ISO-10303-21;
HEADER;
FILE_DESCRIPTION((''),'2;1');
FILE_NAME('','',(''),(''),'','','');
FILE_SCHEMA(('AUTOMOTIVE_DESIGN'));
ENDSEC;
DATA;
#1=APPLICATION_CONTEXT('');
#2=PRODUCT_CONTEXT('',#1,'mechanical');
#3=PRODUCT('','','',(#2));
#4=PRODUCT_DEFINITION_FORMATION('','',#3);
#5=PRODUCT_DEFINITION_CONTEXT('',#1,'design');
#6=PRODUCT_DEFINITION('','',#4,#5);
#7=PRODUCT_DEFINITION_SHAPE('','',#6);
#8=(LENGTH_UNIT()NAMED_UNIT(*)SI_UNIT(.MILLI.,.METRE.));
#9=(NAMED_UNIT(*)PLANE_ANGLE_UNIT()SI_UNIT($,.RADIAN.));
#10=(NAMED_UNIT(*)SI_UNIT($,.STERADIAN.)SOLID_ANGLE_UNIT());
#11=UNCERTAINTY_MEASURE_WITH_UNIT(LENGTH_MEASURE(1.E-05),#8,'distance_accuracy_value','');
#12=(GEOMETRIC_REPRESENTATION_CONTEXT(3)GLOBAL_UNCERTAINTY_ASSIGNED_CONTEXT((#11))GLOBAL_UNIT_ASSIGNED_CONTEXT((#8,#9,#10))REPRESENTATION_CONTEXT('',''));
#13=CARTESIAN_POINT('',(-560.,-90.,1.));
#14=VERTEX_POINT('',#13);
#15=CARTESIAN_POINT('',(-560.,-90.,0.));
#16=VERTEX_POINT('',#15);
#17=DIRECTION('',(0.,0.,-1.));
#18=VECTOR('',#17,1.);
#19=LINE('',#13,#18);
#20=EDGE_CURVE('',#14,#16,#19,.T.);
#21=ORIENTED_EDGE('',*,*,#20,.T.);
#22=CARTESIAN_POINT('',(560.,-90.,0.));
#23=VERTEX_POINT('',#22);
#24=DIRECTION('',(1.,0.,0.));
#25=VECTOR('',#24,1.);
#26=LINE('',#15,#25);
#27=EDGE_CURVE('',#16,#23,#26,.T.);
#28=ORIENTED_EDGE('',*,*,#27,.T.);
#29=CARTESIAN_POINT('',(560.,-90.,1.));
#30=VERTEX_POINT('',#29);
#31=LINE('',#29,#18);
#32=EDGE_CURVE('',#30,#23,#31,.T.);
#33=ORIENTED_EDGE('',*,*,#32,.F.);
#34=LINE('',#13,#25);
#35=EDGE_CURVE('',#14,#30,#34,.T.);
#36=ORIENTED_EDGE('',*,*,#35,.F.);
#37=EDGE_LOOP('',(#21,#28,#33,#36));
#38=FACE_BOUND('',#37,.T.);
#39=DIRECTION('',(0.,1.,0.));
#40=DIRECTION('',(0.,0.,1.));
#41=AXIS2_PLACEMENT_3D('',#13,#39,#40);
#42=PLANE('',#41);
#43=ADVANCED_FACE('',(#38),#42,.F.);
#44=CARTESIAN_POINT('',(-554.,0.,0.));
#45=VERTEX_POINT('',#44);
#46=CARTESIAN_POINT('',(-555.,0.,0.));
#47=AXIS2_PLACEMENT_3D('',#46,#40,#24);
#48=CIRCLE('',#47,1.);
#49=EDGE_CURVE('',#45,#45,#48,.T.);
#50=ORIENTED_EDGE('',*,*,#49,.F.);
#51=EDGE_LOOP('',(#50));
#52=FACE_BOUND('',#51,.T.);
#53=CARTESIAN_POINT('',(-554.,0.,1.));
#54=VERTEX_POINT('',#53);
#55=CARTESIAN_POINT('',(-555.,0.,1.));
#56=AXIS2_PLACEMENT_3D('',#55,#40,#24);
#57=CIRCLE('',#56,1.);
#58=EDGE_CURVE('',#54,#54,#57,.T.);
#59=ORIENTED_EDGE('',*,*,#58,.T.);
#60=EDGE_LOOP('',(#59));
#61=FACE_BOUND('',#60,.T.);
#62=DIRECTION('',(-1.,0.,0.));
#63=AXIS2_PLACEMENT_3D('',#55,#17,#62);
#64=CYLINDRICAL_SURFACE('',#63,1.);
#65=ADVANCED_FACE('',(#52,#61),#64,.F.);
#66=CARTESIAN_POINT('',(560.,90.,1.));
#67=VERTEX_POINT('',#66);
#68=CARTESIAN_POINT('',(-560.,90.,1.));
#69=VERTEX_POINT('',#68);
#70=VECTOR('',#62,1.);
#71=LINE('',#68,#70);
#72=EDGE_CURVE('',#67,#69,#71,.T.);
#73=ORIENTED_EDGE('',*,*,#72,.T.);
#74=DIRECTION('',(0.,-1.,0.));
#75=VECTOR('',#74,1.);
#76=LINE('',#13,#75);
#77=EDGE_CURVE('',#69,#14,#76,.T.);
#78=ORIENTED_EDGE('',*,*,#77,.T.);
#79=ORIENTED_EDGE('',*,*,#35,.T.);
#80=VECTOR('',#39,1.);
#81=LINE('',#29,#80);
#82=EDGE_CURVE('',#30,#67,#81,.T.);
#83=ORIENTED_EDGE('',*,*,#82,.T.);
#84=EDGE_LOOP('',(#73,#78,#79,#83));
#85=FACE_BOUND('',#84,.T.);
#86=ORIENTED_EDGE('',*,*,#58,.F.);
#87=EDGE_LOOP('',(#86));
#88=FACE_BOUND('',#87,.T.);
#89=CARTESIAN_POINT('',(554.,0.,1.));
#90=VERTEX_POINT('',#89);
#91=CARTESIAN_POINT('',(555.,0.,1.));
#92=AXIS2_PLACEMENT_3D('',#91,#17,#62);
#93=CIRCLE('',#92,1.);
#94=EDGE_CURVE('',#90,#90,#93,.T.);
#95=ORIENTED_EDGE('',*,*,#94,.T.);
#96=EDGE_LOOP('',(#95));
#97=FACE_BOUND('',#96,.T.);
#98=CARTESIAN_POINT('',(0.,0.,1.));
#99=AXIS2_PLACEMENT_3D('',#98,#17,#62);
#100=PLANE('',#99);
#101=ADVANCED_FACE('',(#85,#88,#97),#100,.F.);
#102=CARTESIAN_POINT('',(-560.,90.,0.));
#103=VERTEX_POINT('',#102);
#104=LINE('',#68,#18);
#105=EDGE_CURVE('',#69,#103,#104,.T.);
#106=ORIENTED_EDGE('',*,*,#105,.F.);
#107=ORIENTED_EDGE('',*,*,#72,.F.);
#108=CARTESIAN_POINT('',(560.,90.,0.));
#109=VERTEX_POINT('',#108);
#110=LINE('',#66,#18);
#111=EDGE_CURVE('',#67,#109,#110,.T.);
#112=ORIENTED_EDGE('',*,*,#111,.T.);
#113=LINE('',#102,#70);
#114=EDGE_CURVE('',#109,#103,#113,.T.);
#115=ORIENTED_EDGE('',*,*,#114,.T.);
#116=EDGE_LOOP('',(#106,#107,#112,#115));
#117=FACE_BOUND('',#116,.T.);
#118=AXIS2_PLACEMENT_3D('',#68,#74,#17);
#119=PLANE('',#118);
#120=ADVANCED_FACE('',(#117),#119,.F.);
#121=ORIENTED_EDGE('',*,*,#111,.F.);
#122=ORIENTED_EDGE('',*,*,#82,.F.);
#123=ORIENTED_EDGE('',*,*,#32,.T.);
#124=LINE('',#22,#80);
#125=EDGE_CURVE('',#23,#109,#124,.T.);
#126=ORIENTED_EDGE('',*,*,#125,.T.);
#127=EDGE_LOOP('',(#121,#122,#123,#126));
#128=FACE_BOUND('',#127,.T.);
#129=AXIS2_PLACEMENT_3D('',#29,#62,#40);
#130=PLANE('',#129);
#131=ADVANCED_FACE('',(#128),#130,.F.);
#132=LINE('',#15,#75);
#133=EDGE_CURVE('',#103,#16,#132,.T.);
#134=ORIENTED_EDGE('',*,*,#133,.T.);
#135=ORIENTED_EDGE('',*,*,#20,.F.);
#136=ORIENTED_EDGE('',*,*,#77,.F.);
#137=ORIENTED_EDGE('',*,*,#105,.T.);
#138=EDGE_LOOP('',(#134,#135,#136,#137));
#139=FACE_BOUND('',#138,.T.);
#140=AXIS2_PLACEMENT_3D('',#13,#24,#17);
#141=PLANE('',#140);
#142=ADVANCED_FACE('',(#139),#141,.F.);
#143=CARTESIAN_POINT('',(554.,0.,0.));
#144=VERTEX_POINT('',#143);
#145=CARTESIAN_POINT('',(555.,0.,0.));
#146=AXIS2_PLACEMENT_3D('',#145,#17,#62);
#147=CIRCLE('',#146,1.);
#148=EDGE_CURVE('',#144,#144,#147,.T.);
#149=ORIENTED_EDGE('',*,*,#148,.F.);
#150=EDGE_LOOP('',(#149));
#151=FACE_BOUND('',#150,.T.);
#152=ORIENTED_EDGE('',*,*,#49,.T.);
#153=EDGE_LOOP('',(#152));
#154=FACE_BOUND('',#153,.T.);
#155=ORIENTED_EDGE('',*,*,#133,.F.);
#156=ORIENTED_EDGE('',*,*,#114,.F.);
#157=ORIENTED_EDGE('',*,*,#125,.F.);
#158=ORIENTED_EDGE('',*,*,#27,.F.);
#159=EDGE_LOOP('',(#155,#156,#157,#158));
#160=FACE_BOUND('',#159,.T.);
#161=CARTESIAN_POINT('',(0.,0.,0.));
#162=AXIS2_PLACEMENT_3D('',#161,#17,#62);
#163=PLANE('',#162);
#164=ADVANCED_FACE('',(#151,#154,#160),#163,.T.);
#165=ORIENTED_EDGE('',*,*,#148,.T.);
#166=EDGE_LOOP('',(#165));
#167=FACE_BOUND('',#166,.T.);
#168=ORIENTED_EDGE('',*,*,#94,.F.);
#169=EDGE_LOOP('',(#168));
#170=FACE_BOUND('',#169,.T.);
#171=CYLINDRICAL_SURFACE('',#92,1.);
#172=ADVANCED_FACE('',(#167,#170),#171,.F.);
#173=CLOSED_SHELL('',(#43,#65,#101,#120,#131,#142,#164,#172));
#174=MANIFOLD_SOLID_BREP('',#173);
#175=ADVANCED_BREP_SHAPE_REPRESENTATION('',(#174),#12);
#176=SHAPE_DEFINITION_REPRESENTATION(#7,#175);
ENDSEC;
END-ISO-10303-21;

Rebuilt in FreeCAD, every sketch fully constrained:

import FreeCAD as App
import Part
import Sketcher
Q = App.Units.Quantity


def add_polygon(sketch, points):
    """Adds a closed chain of lines whose ends are joined by coincident constraints."""
    first, n = sketch.GeometryCount, len(points)
    for a, b in zip(points, points[1:] + points[:1]):
        sketch.addGeometry(Part.LineSegment(App.Vector(*a, 0), App.Vector(*b, 0)), False)
    for i in range(n):
        sketch.addConstraint(Sketcher.Constraint("Coincident", first + i, 2, first + (i + 1) % n, 1))

doc = App.newDocument("Part")
body = doc.addObject("PartDesign::Body", "Body")

sketch1 = body.newObject("Sketcher::SketchObject", "Sketch")
sketch1.AttachmentSupport = (doc.getObject("XY_Plane"), [""])
sketch1.MapMode = "FlatFace"
add_polygon(sketch1, [(-560, 90), (-560, -90), (560, -90), (560, 90)])
sketch1.addConstraint(Sketcher.Constraint("Vertical", 0))
sketch1.addConstraint(Sketcher.Constraint("Horizontal", 1))
sketch1.addConstraint(Sketcher.Constraint("Vertical", 2))
sketch1.addConstraint(Sketcher.Constraint("Horizontal", 3))
sketch1.addConstraint(Sketcher.Constraint("Symmetric", 0, 2, 2, 2, -1, 1))
sketch1.addConstraint(Sketcher.Constraint("DistanceX", 1, 1, 1, 2, Q("1120 mm")))
sketch1.addConstraint(Sketcher.Constraint("DistanceY", 0, 2, 0, 1, Q("180 mm")))
pad1 = body.newObject("PartDesign::Pad", "Pad")
pad1.Profile = sketch1
pad1.Length = 1

sketch2 = body.newObject("Sketcher::SketchObject", "Sketch001")
sketch2.AttachmentSupport = (doc.getObject("XY_Plane"), [""])
sketch2.MapMode = "FlatFace"
sketch2.addGeometry(Part.Circle(App.Vector(555, 0, 0), App.Vector(0, 0, 1), 1), False)
sketch2.addConstraint(Sketcher.Constraint("PointOnObject", 0, 3, -1))
sketch2.addConstraint(Sketcher.Constraint("Diameter", 0, Q("2 mm")))
sketch2.addConstraint(Sketcher.Constraint("DistanceX", -1, 1, 0, 3, Q("555 mm")))
pocket1 = body.newObject("PartDesign::Pocket", "Pocket")
pocket1.Profile = sketch2
pocket1.Type = "ThroughAll"
pocket1.Reversed = True
doc.recompute()

mirrored = body.newObject("PartDesign::Mirrored", "Mirrored")
mirrored.Originals = [pocket1]
mirrored.MirrorPlane = (doc.getObject("YZ_Plane"), [""])
body.Tip = mirrored

doc.recompute()
